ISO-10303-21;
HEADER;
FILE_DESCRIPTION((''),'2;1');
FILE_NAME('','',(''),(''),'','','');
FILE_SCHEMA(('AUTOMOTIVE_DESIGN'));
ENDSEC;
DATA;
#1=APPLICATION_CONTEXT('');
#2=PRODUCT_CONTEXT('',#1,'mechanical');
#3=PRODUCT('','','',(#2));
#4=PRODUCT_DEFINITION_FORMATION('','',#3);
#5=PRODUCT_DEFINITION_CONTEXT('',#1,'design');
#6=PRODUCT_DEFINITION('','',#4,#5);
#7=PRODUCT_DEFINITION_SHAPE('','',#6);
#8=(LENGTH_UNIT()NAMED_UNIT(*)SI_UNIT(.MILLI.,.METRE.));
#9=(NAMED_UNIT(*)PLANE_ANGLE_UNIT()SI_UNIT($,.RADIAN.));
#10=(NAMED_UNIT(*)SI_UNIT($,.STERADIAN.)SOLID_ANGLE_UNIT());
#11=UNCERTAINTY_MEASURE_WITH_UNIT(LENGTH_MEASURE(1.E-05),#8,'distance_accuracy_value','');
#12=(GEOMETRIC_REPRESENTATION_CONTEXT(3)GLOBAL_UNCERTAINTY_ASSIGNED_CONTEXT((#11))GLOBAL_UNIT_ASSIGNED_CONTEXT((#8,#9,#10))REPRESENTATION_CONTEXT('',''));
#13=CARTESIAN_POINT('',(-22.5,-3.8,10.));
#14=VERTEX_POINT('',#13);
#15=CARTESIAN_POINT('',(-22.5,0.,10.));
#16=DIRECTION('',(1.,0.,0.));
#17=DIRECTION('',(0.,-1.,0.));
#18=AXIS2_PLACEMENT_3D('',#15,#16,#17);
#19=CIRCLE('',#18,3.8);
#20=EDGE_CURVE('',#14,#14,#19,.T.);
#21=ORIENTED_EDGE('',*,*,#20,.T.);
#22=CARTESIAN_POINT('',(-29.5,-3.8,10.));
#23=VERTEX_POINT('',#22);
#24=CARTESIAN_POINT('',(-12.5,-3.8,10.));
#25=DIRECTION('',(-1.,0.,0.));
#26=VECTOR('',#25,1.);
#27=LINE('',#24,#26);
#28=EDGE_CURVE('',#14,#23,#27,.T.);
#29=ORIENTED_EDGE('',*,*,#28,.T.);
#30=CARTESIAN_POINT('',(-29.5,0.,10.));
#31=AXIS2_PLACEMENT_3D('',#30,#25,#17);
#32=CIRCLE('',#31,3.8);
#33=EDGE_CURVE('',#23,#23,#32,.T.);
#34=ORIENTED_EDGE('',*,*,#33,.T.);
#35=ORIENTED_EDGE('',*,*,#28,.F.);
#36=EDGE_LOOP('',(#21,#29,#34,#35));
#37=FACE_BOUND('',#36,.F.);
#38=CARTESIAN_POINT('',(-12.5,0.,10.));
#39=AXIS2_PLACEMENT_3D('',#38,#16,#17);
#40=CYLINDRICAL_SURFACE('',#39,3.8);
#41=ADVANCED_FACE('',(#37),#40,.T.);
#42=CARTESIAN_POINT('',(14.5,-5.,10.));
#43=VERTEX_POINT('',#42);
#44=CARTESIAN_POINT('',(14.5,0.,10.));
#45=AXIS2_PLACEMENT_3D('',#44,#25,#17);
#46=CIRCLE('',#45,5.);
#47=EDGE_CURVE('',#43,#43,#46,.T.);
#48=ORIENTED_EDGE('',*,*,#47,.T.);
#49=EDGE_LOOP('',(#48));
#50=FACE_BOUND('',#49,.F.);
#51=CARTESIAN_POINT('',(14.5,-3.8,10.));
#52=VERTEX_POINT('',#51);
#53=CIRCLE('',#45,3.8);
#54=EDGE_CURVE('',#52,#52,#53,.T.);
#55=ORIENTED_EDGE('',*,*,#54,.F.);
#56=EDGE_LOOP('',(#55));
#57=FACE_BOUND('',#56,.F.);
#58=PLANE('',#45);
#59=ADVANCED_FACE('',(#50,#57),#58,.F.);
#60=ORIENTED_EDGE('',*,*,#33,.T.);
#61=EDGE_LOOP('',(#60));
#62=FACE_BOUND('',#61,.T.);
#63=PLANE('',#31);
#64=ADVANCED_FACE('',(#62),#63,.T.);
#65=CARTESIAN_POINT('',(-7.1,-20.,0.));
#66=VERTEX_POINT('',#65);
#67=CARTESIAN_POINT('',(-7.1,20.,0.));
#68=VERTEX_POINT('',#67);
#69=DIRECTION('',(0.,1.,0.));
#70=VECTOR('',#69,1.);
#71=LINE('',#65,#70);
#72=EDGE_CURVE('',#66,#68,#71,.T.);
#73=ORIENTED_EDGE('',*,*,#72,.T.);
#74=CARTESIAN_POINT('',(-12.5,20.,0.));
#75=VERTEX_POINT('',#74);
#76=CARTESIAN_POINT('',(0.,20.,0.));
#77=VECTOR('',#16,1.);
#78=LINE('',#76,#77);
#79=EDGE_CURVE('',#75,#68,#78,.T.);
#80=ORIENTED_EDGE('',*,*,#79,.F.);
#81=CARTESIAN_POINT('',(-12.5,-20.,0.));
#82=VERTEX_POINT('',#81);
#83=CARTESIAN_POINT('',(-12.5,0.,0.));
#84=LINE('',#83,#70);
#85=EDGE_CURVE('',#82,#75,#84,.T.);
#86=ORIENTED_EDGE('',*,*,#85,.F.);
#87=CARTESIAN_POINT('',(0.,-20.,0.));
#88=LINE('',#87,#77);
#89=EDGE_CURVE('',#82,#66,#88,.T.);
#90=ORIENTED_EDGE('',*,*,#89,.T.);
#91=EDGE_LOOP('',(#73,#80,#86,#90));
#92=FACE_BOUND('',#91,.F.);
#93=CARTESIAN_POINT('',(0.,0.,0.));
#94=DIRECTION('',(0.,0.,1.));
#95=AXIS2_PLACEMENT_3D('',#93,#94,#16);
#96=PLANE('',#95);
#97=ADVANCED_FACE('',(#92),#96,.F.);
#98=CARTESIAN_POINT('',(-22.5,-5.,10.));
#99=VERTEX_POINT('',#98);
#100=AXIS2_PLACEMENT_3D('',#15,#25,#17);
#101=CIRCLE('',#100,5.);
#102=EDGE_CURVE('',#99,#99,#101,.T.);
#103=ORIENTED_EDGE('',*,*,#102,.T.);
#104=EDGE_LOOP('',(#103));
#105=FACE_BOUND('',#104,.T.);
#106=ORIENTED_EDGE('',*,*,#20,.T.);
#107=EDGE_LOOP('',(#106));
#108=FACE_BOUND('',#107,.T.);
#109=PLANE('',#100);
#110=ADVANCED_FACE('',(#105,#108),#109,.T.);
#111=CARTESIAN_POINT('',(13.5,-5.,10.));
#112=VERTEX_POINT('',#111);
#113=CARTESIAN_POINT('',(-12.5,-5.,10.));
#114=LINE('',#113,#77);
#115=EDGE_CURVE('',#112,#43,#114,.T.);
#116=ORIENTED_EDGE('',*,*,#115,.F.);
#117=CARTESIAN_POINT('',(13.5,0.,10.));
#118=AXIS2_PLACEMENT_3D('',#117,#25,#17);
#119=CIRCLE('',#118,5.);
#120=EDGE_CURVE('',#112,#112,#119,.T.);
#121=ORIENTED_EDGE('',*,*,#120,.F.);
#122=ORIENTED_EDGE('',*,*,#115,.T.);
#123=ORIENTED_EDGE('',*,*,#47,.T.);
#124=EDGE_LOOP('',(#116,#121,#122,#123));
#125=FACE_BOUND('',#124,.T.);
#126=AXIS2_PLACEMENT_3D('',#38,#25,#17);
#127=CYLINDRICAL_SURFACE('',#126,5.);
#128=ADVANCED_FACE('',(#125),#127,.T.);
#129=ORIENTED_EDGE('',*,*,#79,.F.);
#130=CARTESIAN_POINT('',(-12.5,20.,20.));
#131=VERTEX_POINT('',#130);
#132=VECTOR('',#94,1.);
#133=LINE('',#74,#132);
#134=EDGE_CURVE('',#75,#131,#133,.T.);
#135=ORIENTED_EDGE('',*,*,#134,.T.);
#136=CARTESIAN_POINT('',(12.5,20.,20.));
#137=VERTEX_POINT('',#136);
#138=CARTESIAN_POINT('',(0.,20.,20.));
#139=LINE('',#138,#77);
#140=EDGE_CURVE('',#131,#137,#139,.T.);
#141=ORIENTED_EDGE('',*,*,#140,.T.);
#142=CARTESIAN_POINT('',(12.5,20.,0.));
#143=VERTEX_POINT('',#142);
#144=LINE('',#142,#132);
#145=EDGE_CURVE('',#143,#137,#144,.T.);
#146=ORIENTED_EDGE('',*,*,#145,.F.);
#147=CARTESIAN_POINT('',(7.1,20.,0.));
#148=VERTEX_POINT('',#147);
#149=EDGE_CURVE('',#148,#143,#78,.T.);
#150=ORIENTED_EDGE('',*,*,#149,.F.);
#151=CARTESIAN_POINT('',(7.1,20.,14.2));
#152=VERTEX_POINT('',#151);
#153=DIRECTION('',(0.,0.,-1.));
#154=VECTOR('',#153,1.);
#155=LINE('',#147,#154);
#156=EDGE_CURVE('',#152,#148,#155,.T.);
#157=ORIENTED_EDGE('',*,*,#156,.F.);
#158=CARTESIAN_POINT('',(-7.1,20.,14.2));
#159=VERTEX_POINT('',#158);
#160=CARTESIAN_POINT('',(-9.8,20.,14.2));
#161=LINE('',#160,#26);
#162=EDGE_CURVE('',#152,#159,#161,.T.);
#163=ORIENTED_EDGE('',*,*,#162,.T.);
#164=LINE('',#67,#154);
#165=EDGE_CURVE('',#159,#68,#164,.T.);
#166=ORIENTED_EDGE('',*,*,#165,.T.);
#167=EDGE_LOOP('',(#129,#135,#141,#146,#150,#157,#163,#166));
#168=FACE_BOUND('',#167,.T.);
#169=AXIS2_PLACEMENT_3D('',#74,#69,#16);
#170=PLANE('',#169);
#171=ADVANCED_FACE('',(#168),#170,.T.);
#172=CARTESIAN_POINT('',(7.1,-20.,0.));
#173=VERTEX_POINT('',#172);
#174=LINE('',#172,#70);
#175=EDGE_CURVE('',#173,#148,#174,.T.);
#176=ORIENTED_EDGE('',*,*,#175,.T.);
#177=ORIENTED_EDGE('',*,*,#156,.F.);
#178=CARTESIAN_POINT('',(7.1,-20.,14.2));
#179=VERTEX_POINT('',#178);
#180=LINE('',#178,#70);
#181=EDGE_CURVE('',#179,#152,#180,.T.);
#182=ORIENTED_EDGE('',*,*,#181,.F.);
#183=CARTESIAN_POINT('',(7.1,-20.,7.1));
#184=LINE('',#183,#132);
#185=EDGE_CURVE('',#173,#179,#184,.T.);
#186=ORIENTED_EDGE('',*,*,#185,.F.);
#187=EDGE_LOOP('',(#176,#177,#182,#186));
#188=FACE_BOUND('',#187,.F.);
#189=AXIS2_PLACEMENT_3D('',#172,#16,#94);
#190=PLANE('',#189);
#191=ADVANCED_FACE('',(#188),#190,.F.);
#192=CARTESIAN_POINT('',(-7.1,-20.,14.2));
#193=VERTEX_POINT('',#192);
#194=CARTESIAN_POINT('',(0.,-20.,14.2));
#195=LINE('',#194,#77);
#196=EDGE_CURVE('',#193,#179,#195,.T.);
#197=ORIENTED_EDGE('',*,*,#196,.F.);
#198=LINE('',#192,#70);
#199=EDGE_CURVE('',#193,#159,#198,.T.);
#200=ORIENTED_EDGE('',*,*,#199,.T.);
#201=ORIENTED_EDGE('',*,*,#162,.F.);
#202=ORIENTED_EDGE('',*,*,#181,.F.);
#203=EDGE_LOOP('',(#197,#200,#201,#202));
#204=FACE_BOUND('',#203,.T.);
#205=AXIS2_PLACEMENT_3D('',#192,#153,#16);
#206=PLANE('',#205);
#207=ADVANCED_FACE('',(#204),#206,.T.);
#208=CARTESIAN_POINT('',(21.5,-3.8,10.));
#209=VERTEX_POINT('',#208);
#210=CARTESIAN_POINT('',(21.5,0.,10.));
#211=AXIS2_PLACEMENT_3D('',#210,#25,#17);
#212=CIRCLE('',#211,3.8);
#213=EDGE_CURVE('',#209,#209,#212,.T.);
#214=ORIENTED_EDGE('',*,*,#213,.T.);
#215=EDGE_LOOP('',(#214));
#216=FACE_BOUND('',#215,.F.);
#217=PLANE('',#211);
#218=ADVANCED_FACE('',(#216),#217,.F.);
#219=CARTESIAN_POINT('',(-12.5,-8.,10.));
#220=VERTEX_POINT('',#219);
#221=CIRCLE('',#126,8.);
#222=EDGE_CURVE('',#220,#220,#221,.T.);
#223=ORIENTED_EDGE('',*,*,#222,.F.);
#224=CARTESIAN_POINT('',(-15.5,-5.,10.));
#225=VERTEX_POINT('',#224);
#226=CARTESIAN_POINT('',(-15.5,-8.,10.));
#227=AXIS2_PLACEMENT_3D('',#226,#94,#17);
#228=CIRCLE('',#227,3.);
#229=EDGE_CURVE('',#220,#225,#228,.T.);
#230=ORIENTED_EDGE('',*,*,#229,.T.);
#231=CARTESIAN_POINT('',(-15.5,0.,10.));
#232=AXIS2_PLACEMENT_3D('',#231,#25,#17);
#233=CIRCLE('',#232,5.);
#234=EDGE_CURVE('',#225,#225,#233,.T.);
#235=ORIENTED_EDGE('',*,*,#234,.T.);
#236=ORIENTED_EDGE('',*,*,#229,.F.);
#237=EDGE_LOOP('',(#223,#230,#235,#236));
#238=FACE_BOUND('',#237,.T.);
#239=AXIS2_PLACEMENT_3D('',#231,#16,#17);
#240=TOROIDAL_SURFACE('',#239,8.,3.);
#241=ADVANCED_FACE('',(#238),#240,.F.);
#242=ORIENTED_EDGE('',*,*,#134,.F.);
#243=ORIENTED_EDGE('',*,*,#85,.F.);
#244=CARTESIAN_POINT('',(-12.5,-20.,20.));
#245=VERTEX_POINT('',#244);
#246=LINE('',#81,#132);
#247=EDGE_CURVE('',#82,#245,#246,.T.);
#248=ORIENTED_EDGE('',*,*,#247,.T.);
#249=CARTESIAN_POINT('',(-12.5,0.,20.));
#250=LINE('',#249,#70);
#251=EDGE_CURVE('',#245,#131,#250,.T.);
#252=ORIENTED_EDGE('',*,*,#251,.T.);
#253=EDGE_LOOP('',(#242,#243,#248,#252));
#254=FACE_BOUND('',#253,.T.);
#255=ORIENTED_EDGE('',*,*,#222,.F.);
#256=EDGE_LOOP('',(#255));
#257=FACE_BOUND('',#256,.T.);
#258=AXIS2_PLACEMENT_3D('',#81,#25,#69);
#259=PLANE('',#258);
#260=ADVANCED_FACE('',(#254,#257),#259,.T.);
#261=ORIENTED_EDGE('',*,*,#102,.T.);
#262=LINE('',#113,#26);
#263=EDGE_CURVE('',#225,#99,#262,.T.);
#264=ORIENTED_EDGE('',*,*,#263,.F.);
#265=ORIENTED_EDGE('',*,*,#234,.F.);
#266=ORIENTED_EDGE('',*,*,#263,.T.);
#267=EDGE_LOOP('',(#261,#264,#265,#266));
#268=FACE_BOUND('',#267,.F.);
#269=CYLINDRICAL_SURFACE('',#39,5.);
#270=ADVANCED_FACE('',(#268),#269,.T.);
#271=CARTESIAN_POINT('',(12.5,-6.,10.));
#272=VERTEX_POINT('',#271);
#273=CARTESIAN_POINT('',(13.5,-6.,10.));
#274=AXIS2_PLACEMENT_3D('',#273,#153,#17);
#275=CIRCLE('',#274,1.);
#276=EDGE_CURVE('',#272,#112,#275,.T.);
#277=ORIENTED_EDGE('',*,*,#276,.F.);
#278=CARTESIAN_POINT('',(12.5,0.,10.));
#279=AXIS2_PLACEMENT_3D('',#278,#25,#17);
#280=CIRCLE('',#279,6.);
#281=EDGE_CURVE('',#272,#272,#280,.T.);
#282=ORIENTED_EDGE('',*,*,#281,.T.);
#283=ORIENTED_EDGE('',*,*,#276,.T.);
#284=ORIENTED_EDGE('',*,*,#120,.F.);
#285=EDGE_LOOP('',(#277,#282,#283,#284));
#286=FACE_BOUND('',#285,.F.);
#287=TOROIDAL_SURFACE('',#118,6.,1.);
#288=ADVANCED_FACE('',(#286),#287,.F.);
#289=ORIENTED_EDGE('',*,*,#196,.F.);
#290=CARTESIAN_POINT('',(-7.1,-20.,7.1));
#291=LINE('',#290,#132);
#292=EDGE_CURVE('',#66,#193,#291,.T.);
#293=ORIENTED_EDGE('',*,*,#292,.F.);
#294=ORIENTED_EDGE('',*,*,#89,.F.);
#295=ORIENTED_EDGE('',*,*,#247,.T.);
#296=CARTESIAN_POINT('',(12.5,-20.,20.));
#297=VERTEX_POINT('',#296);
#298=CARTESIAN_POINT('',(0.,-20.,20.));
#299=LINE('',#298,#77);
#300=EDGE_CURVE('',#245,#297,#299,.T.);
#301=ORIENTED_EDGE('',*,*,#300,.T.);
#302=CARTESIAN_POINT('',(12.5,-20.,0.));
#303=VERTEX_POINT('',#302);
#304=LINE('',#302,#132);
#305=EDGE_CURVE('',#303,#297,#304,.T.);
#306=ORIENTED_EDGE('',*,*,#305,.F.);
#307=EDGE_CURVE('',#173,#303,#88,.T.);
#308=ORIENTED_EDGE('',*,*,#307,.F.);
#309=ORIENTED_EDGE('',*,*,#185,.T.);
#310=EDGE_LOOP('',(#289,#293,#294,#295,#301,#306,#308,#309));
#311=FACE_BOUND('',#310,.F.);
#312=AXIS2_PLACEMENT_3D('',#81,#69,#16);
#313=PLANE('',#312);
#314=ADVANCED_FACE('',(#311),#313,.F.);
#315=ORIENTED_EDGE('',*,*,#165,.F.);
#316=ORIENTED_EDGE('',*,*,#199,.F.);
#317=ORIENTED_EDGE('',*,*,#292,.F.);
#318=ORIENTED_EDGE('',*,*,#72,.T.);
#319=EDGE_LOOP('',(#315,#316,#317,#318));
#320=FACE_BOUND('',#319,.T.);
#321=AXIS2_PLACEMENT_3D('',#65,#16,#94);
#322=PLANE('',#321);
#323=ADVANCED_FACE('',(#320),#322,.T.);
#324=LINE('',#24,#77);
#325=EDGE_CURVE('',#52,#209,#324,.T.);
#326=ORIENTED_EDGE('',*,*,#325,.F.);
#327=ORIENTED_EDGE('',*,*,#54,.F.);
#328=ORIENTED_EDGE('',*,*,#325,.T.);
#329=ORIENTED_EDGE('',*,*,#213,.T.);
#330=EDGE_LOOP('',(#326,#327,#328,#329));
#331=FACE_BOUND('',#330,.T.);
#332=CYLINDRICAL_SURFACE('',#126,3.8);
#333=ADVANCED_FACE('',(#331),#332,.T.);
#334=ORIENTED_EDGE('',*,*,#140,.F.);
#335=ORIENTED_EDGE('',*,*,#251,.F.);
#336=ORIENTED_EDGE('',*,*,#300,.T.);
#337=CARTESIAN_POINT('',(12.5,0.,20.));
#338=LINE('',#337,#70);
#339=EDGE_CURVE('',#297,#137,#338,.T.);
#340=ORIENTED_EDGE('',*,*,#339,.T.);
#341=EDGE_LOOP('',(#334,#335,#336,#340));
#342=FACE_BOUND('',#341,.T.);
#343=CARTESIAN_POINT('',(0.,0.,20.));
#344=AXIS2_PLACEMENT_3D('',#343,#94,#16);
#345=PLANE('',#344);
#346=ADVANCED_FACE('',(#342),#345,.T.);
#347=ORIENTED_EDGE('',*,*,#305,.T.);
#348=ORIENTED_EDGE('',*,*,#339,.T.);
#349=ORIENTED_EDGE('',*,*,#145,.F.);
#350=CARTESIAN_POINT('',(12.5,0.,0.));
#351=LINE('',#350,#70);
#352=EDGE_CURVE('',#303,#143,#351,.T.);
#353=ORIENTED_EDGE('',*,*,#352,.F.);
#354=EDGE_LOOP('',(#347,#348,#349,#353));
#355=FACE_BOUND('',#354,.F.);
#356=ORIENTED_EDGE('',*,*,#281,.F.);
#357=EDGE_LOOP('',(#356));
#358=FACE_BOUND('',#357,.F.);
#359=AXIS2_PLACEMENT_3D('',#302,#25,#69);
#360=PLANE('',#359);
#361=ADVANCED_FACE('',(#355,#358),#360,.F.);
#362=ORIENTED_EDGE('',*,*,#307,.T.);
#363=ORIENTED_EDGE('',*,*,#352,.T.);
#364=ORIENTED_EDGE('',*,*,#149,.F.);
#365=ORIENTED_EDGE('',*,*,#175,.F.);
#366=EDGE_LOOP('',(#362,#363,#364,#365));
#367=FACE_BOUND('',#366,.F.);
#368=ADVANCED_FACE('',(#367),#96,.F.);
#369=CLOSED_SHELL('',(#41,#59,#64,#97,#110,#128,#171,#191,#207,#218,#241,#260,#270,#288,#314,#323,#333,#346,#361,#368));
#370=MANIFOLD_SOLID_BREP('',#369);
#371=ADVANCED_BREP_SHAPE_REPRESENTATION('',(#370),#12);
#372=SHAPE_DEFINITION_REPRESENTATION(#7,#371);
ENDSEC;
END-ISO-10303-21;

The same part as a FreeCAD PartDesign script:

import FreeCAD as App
import Part
import Sketcher

V = App.Vector


def edges_at(feature, points):
    """Names of the edges that pass closest to the given points."""
    edges = feature.Shape.Edges
    near = lambda p: min(range(len(edges)), key=lambda i: edges[i].distToShape(Part.Vertex(*p))[0])
    return sorted({f"Edge{near(p) + 1}" for p in points})

doc = App.newDocument("Part")
body = doc.addObject("PartDesign::Body", "Body")

# Sketch on XY plane
sketch1 = body.newObject("Sketcher::SketchObject", "Sketch")
sketch1.AttachmentSupport = (doc.getObject("XY_Plane"), [""])
sketch1.MapMode = "FlatFace"
sketch1.addGeometry(Part.LineSegment(V(-12, 20, 0), V(-12, -20, 0)), False)
sketch1.addGeometry(Part.LineSegment(V(-12, -20, 0), V(12, -20, 0)), False)
sketch1.addGeometry(Part.LineSegment(V(12, -20, 0), V(12, 20, 0)), False)
sketch1.addGeometry(Part.LineSegment(V(12, 20, 0), V(-12, 20, 0)), False)
sketch1.addConstraint(Sketcher.Constraint("Coincident", 0, 2, 1, 1))
sketch1.addConstraint(Sketcher.Constraint("Coincident", 1, 2, 2, 1))
sketch1.addConstraint(Sketcher.Constraint("Coincident", 2, 2, 3, 1))
sketch1.addConstraint(Sketcher.Constraint("Coincident", 3, 2, 0, 1))
sketch1.addConstraint(Sketcher.Constraint("Vertical", 0))
sketch1.addConstraint(Sketcher.Constraint("Horizontal", 1))
sketch1.addConstraint(Sketcher.Constraint("Vertical", 2))
sketch1.addConstraint(Sketcher.Constraint("Horizontal", 3))
sketch1.addConstraint(Sketcher.Constraint("Symmetric", 0, 2, 2, 2, -1, 1))
sketch1.addConstraint(Sketcher.Constraint("DistanceX", 1, 1, 1, 2, 25.0))
sketch1.addConstraint(Sketcher.Constraint("DistanceY", 0, 2, 0, 1, 40.0))
pad1 = body.newObject("PartDesign::Pad", "Pad")
pad1.Profile = sketch1
pad1.Length = 20

# Sketch on YZ plane
sketch2 = body.newObject("Sketcher::SketchObject", "Sketch001")
sketch2.AttachmentSupport = (doc.getObject("YZ_Plane"), [""])
sketch2.MapMode = "FlatFace"
sketch2.AttachmentOffset = App.Placement(V(0, 0, -12.5), App.Rotation())
sketch2.addGeometry(Part.Circle(V(0, 10, 0), V(0, 0, 1), 3.8), False)
sketch2.addConstraint(Sketcher.Constraint("PointOnObject", 0, 3, -2))
sketch2.addConstraint(Sketcher.Constraint("Diameter", 0, 7.6))
sketch2.addConstraint(Sketcher.Constraint("DistanceY", -1, 1, 0, 3, 10.0))
pad2 = body.newObject("PartDesign::Pad", "Pad001")
pad2.Profile = sketch2
pad2.Type = "TwoLengths"
pad2.Length = 17
pad2.Length2 = 34
pad2.Reversed = True

# Sketch on YZ plane
sketch3 = body.newObject("Sketcher::SketchObject", "Sketch002")
sketch3.AttachmentSupport = (doc.getObject("YZ_Plane"), [""])
sketch3.MapMode = "FlatFace"
sketch3.AttachmentOffset = App.Placement(V(0, 0, -12.5), App.Rotation())
sketch3.addGeometry(Part.Circle(V(0, 10, 0), V(0, 0, 1), 5), False)
sketch3.addConstraint(Sketcher.Constraint("PointOnObject", 0, 3, -2))
sketch3.addConstraint(Sketcher.Constraint("Diameter", 0, 10.0))
sketch3.addConstraint(Sketcher.Constraint("DistanceY", -1, 1, 0, 3, 10.0))
pad3 = body.newObject("PartDesign::Pad", "Pad002")
pad3.Profile = sketch3
pad3.Type = "TwoLengths"
pad3.Length = 10
pad3.Length2 = 27
pad3.Reversed = True

# Sketch on XZ plane
sketch4 = body.newObject("Sketcher::SketchObject", "Sketch003")
sketch4.AttachmentSupport = (doc.getObject("XZ_Plane"), [""])
sketch4.MapMode = "FlatFace"
sketch4.AttachmentOffset = App.Placement(V(0, 0, 20), App.Rotation())
sketch4.addGeometry(Part.LineSegment(V(-7, 14, 0), V(-7, 0, 0)), False)
sketch4.addGeometry(Part.LineSegment(V(-7, 0, 0), V(7, 0, 0)), False)
sketch4.addGeometry(Part.LineSegment(V(7, 0, 0), V(7, 14, 0)), False)
sketch4.addGeometry(Part.LineSegment(V(7, 14, 0), V(-7, 14, 0)), False)
sketch4.addConstraint(Sketcher.Constraint("Coincident", 0, 2, 1, 1))
sketch4.addConstraint(Sketcher.Constraint("Coincident", 1, 2, 2, 1))
sketch4.addConstraint(Sketcher.Constraint("Coincident", 2, 2, 3, 1))
sketch4.addConstraint(Sketcher.Constraint("Coincident", 3, 2, 0, 1))
sketch4.addConstraint(Sketcher.Constraint("Vertical", 0))
sketch4.addConstraint(Sketcher.Constraint("Horizontal", 1))
sketch4.addConstraint(Sketcher.Constraint("Vertical", 2))
sketch4.addConstraint(Sketcher.Constraint("Horizontal", 3))
sketch4.addConstraint(Sketcher.Constraint("Symmetric", 0, 2, 1, 2, -1, 1))
sketch4.addConstraint(Sketcher.Constraint("Equal", 3, 0))
sketch4.addConstraint(Sketcher.Constraint("DistanceX", 1, 1, 1, 2, 14.2))
pocket1 = body.newObject("PartDesign::Pocket", "Pocket")
pocket1.Profile = sketch4
pocket1.Length = 50
doc.recompute()

fillet = body.newObject("PartDesign::Fillet", "Fillet")
fillet.Base = (pocket1, edges_at(pocket1, [(-12.5, 5, 10)]))
fillet.Radius = 3
doc.recompute()

fillet2 = body.newObject("PartDesign::Fillet", "Fillet001")
fillet2.Base = (fillet, edges_at(fillet, [(12.5, 5, 10)]))
fillet2.Radius = 1

doc.recompute()
